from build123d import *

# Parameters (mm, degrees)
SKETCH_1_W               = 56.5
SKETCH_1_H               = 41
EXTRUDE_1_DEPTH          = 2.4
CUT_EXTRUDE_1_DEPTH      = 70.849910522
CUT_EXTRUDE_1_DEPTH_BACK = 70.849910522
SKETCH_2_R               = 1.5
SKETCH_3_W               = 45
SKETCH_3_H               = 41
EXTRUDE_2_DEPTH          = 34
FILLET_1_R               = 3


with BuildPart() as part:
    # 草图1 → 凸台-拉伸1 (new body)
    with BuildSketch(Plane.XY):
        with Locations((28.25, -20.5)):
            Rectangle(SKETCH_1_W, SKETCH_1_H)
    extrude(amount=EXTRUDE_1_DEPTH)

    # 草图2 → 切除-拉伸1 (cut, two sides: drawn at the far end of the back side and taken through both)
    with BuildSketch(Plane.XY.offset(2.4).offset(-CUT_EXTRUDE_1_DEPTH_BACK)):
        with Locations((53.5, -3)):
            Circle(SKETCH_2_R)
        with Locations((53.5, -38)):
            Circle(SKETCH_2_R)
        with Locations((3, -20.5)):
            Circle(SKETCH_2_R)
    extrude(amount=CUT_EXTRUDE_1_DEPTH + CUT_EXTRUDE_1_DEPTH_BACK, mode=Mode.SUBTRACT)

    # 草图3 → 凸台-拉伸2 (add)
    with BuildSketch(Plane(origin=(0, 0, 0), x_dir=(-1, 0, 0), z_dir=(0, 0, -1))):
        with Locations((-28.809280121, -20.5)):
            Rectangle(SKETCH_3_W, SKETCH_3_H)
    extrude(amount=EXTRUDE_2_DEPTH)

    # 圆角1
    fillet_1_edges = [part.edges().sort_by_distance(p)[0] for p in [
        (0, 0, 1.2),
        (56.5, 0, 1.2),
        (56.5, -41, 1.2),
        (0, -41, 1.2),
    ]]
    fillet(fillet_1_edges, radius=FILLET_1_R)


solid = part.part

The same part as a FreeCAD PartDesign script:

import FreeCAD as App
import Part
import Sketcher


def edges_at(feature, points):
    """Names of the edges that pass closest to the given points."""
    edges = feature.Shape.Edges
    near = lambda p: min(range(len(edges)), key=lambda i: edges[i].distToShape(Part.Vertex(*p))[0])
    return sorted({f"Edge{near(p) + 1}" for p in points})

doc = App.newDocument("Part")
body = doc.addObject("PartDesign::Body", "Body")

sketch1 = body.newObject("Sketcher::SketchObject", "Sketch")
sketch1.AttachmentSupport = (doc.getObject("XY_Plane"), [""])
sketch1.MapMode = "FlatFace"
sketch1.addGeometry([
    Part.LineSegment(App.Vector(0, 0, 0), App.Vector(0, -41, 0)),
    Part.LineSegment(App.Vector(0, -41, 0), App.Vector(56, -41, 0)),
    Part.LineSegment(App.Vector(56, -41, 0), App.Vector(56, 0, 0)),
    Part.LineSegment(App.Vector(56, 0, 0), App.Vector(0, 0, 0)),
], False)
sketch1.addConstraint([
    Sketcher.Constraint("Coincident", 0, 2, 1, 1),
    Sketcher.Constraint("Coincident", 1, 2, 2, 1),
    Sketcher.Constraint("Coincident", 2, 2, 3, 1),
    Sketcher.Constraint("Coincident", 3, 2, 0, 1),
    Sketcher.Constraint("Vertical", 0),
    Sketcher.Constraint("Horizontal", 1),
    Sketcher.Constraint("Vertical", 2),
    Sketcher.Constraint("Horizontal", 3),
    Sketcher.Constraint("Coincident", 3, 2, -1, 1),
    Sketcher.Constraint("DistanceY", 0, 2, 0, 1, 41.0),
    Sketcher.Constraint("DistanceX", 1, 1, 1, 2, 56.5),
])
pad1 = body.newObject("PartDesign::Pad", "Pad")
pad1.Profile = sketch1
pad1.Length = 2.4

sketch2 = body.newObject("Sketcher::SketchObject", "Sketch001")
sketch2.AttachmentSupport = (doc.getObject("XY_Plane"), [""])
sketch2.MapMode = "FlatFace"
sketch2.AttachmentOffset = App.Placement(App.Vector(0, 0, 2.4), App.Rotation())
sketch2.addGeometry([
    Part.Circle(App.Vector(53.5, -3, 0), App.Vector(0, 0, 1), 1.5),
    Part.Circle(App.Vector(53.5, -38, 0), App.Vector(0, 0, 1), 1.5),
    Part.Circle(App.Vector(3, -20.5, 0), App.Vector(0, 0, 1), 1.5),
], False)
sketch2.addConstraint([
    Sketcher.Constraint("Equal", 0, 1),
    Sketcher.Constraint("Equal", 1, 2),
    Sketcher.Constraint("Vertical", 0, 3, 1, 3),
    Sketcher.Constraint("Diameter", 0, 3.0),
    Sketcher.Constraint("DistanceY", 0, 3, -1, 1, 3.0),
    Sketcher.Constraint("DistanceY", 1, 3, -1, 1, 38.0),
    Sketcher.Constraint("DistanceX", -1, 1, 2, 3, 3.0),
    Sketcher.Constraint("DistanceX", -1, 1, 0, 3, 53.5),
    Sketcher.Constraint("DistanceY", 2, 3, -1, 1, 20.5),
])
pocket1 = body.newObject("PartDesign::Pocket", "Pocket")
pocket1.Profile = sketch2
pocket1.Type = "ThroughAll"
pocket1.Midplane = True

sketch3 = body.newObject("Sketcher::SketchObject", "Sketch002")
sketch3.AttachmentSupport = (doc.getObject("XY_Plane"), [""])
sketch3.MapMode = "FlatFace"
sketch3.addGeometry([
    Part.LineSegment(App.Vector(51, 0, 0), App.Vector(51, -41, 0)),
    Part.LineSegment(App.Vector(51, -41, 0), App.Vector(6, -41, 0)),
    Part.LineSegment(App.Vector(6, -41, 0), App.Vector(6, 0, 0)),
    Part.LineSegment(App.Vector(6, 0, 0), App.Vector(51, 0, 0)),
], False)
sketch3.addConstraint([
    Sketcher.Constraint("Coincident", 0, 2, 1, 1),
    Sketcher.Constraint("Coincident", 1, 2, 2, 1),
    Sketcher.Constraint("Coincident", 2, 2, 3, 1),
    Sketcher.Constraint("Coincident", 3, 2, 0, 1),
    Sketcher.Constraint("Vertical", 0),
    Sketcher.Constraint("Horizontal", 1),
    Sketcher.Constraint("Vertical", 2),
    Sketcher.Constraint("Horizontal", 3),
    Sketcher.Constraint("PointOnObject", 2, 2, -1),
    Sketcher.Constraint("DistanceX", 1, 2, 1, 1, 45.0),
    Sketcher.Constraint("DistanceY", 0, 2, 0, 1, 41.0),
    Sketcher.Constraint("DistanceX", -1, 1, 0, 2, 51.30928),
])
pad2 = body.newObject("PartDesign::Pad", "Pad001")
pad2.Profile = sketch3
pad2.Length = 34
pad2.Reversed = True
doc.recompute()

fillet = body.newObject("PartDesign::Fillet", "Fillet")
fillet.Base = (pad2, edges_at(pad2, [
    (0, 0, 1.2),
    (56.5, 0, 1.2),
    (56.5, -41, 1.2),
    (0, -41, 1.2),
]))
fillet.Radius = 3

doc.recompute()
